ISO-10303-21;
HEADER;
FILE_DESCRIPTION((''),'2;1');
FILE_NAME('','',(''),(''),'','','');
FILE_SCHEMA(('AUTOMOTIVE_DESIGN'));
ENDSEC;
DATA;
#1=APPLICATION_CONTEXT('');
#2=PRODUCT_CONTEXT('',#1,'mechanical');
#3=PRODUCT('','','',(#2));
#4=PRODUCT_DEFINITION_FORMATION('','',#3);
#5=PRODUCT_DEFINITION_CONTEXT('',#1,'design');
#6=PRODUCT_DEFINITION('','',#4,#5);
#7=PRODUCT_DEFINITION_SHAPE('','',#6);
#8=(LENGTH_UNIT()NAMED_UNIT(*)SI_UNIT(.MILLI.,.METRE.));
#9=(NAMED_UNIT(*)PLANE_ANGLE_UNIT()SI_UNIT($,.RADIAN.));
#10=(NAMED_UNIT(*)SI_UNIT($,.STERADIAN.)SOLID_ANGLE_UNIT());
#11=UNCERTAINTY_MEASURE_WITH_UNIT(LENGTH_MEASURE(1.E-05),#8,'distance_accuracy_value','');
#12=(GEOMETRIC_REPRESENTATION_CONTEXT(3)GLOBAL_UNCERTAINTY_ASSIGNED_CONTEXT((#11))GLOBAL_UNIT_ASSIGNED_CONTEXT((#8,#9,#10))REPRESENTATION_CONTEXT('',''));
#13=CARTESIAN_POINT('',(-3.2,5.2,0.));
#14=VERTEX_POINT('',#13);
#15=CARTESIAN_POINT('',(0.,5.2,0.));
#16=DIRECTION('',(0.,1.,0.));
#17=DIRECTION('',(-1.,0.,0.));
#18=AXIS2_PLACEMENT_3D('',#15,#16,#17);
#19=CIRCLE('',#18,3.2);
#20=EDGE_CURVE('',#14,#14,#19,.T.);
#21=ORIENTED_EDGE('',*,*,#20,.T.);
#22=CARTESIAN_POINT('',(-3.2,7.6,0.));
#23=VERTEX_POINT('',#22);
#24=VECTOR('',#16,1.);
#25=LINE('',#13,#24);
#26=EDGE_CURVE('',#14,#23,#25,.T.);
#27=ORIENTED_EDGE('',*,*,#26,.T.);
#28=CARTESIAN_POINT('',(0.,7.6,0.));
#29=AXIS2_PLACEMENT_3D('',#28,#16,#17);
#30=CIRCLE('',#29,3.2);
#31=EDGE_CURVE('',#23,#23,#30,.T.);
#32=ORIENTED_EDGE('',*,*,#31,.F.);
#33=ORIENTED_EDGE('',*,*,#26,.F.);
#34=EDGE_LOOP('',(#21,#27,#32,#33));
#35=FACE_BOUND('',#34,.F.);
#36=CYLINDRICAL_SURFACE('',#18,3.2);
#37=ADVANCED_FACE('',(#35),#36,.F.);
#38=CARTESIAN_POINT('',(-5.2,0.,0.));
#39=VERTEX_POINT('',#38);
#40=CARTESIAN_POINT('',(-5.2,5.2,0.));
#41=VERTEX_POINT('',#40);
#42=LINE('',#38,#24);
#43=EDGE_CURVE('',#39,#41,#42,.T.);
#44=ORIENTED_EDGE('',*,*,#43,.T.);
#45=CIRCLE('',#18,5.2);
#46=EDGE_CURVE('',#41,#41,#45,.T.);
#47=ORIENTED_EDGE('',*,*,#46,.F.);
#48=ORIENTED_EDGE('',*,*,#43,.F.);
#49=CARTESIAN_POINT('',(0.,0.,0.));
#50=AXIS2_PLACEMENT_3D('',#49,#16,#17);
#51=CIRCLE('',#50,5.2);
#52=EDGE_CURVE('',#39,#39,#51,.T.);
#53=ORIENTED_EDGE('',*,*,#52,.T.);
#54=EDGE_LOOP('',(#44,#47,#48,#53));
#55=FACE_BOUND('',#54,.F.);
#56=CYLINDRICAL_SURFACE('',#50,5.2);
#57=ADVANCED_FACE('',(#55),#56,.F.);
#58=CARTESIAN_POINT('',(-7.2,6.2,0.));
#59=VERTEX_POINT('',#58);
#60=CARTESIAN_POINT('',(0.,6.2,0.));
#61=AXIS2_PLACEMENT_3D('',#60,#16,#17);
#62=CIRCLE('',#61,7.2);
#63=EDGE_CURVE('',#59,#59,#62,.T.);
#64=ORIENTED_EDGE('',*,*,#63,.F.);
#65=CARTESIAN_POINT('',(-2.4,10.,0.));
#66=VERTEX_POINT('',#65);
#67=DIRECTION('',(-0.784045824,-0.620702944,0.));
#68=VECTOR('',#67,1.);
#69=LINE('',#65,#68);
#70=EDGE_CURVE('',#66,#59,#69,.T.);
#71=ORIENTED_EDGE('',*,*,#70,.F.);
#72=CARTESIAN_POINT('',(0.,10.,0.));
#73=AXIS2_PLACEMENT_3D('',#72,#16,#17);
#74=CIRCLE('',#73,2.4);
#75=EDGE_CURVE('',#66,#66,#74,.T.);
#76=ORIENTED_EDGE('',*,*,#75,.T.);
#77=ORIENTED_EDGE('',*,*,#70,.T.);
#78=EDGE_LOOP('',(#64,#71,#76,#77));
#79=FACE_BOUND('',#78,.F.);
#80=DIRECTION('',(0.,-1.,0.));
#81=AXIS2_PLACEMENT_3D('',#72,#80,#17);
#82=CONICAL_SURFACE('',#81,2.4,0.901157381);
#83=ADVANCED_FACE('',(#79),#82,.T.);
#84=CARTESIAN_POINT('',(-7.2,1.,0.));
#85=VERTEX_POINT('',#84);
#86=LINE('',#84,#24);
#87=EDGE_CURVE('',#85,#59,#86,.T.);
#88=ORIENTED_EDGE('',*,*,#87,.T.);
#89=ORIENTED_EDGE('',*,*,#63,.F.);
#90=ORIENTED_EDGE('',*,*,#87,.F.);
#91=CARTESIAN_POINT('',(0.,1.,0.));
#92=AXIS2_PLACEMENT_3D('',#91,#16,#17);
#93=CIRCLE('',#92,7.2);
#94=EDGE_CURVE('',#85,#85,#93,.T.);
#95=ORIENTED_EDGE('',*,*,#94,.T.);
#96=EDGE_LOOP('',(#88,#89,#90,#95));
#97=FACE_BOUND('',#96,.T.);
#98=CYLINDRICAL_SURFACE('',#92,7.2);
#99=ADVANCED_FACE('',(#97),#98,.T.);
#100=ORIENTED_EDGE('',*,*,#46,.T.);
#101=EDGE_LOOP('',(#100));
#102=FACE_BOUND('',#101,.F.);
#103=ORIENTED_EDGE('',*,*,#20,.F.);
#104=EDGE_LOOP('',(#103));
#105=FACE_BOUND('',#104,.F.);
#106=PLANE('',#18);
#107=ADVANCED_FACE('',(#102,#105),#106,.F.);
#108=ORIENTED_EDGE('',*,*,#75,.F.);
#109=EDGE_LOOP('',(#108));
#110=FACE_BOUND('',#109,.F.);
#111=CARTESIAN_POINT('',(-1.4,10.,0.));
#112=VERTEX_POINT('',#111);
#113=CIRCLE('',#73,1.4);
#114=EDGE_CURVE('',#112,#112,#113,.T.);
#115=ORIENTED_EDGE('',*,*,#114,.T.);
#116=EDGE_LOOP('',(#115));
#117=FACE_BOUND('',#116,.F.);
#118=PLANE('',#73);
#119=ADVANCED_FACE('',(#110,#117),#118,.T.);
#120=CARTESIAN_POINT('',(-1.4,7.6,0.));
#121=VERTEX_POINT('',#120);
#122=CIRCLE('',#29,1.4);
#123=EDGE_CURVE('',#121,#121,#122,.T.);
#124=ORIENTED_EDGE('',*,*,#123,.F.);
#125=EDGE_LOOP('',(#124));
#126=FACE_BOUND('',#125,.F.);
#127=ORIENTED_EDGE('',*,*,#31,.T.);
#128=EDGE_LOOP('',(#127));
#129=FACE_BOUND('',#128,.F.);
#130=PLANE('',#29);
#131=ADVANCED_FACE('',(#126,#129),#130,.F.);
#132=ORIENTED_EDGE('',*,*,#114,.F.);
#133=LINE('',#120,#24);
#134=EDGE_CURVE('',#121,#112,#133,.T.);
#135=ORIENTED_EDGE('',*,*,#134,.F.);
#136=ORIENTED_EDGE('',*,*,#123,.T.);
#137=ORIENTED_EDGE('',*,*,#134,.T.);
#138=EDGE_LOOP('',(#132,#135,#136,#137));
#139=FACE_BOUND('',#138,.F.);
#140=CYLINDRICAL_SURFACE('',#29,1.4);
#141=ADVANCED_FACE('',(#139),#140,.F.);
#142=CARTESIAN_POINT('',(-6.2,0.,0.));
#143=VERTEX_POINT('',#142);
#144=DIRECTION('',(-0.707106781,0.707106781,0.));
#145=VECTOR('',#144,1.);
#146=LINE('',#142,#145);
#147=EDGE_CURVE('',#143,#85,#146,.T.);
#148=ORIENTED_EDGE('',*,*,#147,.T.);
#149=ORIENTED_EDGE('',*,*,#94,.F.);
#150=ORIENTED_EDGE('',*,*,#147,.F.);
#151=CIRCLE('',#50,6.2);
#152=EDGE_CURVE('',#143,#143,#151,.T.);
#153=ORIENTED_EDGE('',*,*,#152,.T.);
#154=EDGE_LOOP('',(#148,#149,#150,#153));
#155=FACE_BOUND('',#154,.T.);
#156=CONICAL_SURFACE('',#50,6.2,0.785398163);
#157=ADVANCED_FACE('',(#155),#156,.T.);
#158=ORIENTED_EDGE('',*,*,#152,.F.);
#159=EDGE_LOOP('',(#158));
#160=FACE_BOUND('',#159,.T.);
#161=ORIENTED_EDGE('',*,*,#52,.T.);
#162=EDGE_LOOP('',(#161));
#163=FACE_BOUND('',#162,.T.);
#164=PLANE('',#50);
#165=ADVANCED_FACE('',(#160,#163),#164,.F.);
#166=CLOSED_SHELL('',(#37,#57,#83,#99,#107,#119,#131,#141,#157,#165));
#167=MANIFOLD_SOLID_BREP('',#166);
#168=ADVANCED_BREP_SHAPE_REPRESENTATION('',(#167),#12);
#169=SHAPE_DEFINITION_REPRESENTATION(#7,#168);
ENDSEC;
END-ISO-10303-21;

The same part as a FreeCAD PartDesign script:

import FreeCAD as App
import Part
import Sketcher

V = App.Vector

doc = App.newDocument("Part")
body = doc.addObject("PartDesign::Body", "Body")

sketch1 = doc.addObject("Sketcher::SketchObject", "Sketch")
body.addObject(sketch1)
sketch1.AttachmentSupport = (doc.XY_Plane, [""])
sketch1.MapMode = "FlatFace"
sketch1.addGeometry(Part.LineSegment(V(-6.2, 0, 0), V(-5.2, 0, 0)), False)
sketch1.addGeometry(Part.LineSegment(V(-5.2, 0, 0), V(-5.2, 5.2, 0)), False)
sketch1.addGeometry(Part.LineSegment(V(-5.2, 5.2, 0), V(-3.2, 5.2, 0)), False)
sketch1.addGeometry(Part.LineSegment(V(-3.2, 5.2, 0), V(-3.2, 7.6, 0)), False)
sketch1.addGeometry(Part.LineSegment(V(-3.2, 7.6, 0), V(-1.4, 7.6, 0)), False)
sketch1.addGeometry(Part.LineSegment(V(-1.4, 7.6, 0), V(-1.4, 10, 0)), False)
sketch1.addGeometry(Part.LineSegment(V(-1.4, 10, 0), V(-2.4, 10, 0)), False)
sketch1.addGeometry(Part.LineSegment(V(-2.4, 10, 0), V(-7.2, 6.2, 0)), False)
sketch1.addGeometry(Part.LineSegment(V(-7.2, 6.2, 0), V(-7.2, 1, 0)), False)
sketch1.addGeometry(Part.LineSegment(V(-7.2, 1, 0), V(-6.2, 0, 0)), False)
sketch1.addConstraint(Sketcher.Constraint("Coincident", 0, 2, 1, 1))
sketch1.addConstraint(Sketcher.Constraint("Coincident", 1, 2, 2, 1))
sketch1.addConstraint(Sketcher.Constraint("Coincident", 2, 2, 3, 1))
sketch1.addConstraint(Sketcher.Constraint("Coincident", 3, 2, 4, 1))
sketch1.addConstraint(Sketcher.Constraint("Coincident", 4, 2, 5, 1))
sketch1.addConstraint(Sketcher.Constraint("Coincident", 5, 2, 6, 1))
sketch1.addConstraint(Sketcher.Constraint("Coincident", 6, 2, 7, 1))
sketch1.addConstraint(Sketcher.Constraint("Coincident", 7, 2, 8, 1))
sketch1.addConstraint(Sketcher.Constraint("Coincident", 8, 2, 9, 1))
sketch1.addConstraint(Sketcher.Constraint("Coincident", 9, 2, 0, 1))
sketch1.addConstraint(Sketcher.Constraint("Horizontal", 0))
sketch1.addConstraint(Sketcher.Constraint("Vertical", 1))
sketch1.addConstraint(Sketcher.Constraint("Horizontal", 2))
sketch1.addConstraint(Sketcher.Constraint("Vertical", 3))
sketch1.addConstraint(Sketcher.Constraint("Horizontal", 4))
sketch1.addConstraint(Sketcher.Constraint("Vertical", 5))
sketch1.addConstraint(Sketcher.Constraint("Horizontal", 6))
sketch1.addConstraint(Sketcher.Constraint("Vertical", 8))
sketch1.addConstraint(Sketcher.Constraint("PointOnObject", 0, 2, -1))
sketch1.addConstraint(Sketcher.Constraint("Equal", 0, 6))
sketch1.addConstraint(Sketcher.Constraint("Equal", 3, 5))
sketch1.addConstraint(Sketcher.Constraint("Equal", 1, 8))
sketch1.addConstraint(Sketcher.Constraint("DistanceX", 0, 1, 0, 2, 1.0))
sketch1.addConstraint(Sketcher.Constraint("DistanceX", 2, 1, 2, 2, 2.0))
sketch1.addConstraint(Sketcher.Constraint("DistanceY", 1, 1, 1, 2, 5.2))
sketch1.addConstraint(Sketcher.Constraint("DistanceY", 3, 1, 3, 2, 2.4))
sketch1.addConstraint(Sketcher.Constraint("DistanceY", -1, 1, 8, 2, 1.0))
sketch1.addConstraint(Sketcher.Constraint("DistanceX", 7, 2, 1, 2, 2.0))
sketch1.addConstraint(Sketcher.Constraint("DistanceX", 0, 2, -1, 1, 5.2))
sketch1.addConstraint(Sketcher.Constraint("DistanceX", 4, 2, -1, 1, 1.4))
revolution = doc.addObject("PartDesign::Revolution", "Revolution")
body.addObject(revolution)
revolution.Profile = sketch1
revolution.ReferenceAxis = (sketch1, ["V_Axis"])
revolution.Angle = 360

doc.recompute()
